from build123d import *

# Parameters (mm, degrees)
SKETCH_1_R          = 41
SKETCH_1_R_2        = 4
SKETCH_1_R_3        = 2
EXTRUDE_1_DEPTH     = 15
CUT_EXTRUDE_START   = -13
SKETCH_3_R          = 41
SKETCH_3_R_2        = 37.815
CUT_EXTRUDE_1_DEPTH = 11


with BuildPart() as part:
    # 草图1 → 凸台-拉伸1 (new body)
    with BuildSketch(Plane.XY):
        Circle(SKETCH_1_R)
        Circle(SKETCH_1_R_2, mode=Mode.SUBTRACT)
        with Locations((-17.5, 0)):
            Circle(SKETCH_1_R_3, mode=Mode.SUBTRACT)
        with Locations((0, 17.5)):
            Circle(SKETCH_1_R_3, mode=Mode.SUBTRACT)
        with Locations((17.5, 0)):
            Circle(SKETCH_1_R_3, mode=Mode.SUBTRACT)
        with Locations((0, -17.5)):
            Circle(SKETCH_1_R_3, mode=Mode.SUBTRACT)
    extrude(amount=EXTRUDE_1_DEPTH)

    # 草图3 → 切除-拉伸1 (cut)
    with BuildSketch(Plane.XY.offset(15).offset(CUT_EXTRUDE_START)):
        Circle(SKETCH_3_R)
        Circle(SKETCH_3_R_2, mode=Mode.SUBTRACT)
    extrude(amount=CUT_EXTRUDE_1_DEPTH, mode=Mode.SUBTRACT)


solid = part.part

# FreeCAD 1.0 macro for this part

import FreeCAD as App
import Part
import Sketcher

doc = App.newDocument("Part")
body = doc.addObject("PartDesign::Body", "Body")

# Sketch on XY plane
sketch1 = body.newObject("Sketcher::SketchObject", "Sketch")
sketch1.AttachmentSupport = (doc.getObject("XY_Plane"), [""])
sketch1.MapMode = "FlatFace"
sketch1.addGeometry([
    Part.Circle(App.Vector(0, 0, 0), App.Vector(0, 0, 1), 41),  # 0
    Part.Circle(App.Vector(0, -17.5, 0), App.Vector(0, 0, 1), 2),  # 1
    Part.Circle(App.Vector(-17.5, 0, 0), App.Vector(0, 0, 1), 2),  # 2
    Part.Circle(App.Vector(0, 0, 0), App.Vector(0, 0, 1), 4),  # 3
    Part.Circle(App.Vector(17.5, 0, 0), App.Vector(0, 0, 1), 2),  # 4
    Part.Circle(App.Vector(0, 17.5, 0), App.Vector(0, 0, 1), 2),  # 5
], False)
sketch1.addConstraint([
    Sketcher.Constraint("Coincident", 0, 3, -1, 1),
    Sketcher.Constraint("Coincident", 3, 3, -1, 1),
    Sketcher.Constraint("Equal", 1, 2),
    Sketcher.Constraint("Equal", 2, 4),
    Sketcher.Constraint("Equal", 4, 5),
    Sketcher.Constraint("Symmetric", 2, 3, 4, 3, -1, 1),
    Sketcher.Constraint("Symmetric", 1, 3, 5, 3, -1, 1),
    Sketcher.Constraint("PointOnObject", 1, 3, -2),
    Sketcher.Constraint("PointOnObject", 2, 3, -1),
    Sketcher.Constraint("Diameter", 0, 82.0),
    Sketcher.Constraint("Diameter", 1, 4.0),
    Sketcher.Constraint("Diameter", 3, 8.0),
    Sketcher.Constraint("DistanceX", 2, 3, 4, 3, 35.0),
    Sketcher.Constraint("DistanceY", 1, 3, 5, 3, 35.0),
])
pad1 = body.newObject("PartDesign::Pad", "Pad")
pad1.Profile = sketch1
pad1.Length = 15

# Sketch on XY plane
sketch2 = body.newObject("Sketcher::SketchObject", "Sketch001")
sketch2.AttachmentSupport = (doc.getObject("XY_Plane"), [""])
sketch2.MapMode = "FlatFace"
sketch2.AttachmentOffset = App.Placement(App.Vector(0, 0, 2), App.Rotation())
sketch2.addGeometry([
    Part.Circle(App.Vector(0, 0, 0), App.Vector(0, 0, 1), 41),
    Part.Circle(App.Vector(0, 0, 0), App.Vector(0, 0, 1), 38),
], False)
sketch2.addConstraint([
    Sketcher.Constraint("Coincident", 0, 3, -1, 1),
    Sketcher.Constraint("Coincident", 1, 3, -1, 1),
    Sketcher.Constraint("Diameter", 0, 82.0),
    Sketcher.Constraint("Diameter", 1, 75.63),
])
pocket1 = body.newObject("PartDesign::Pocket", "Pocket")
pocket1.Profile = sketch2
pocket1.Length = 11
pocket1.Reversed = True

doc.recompute()
